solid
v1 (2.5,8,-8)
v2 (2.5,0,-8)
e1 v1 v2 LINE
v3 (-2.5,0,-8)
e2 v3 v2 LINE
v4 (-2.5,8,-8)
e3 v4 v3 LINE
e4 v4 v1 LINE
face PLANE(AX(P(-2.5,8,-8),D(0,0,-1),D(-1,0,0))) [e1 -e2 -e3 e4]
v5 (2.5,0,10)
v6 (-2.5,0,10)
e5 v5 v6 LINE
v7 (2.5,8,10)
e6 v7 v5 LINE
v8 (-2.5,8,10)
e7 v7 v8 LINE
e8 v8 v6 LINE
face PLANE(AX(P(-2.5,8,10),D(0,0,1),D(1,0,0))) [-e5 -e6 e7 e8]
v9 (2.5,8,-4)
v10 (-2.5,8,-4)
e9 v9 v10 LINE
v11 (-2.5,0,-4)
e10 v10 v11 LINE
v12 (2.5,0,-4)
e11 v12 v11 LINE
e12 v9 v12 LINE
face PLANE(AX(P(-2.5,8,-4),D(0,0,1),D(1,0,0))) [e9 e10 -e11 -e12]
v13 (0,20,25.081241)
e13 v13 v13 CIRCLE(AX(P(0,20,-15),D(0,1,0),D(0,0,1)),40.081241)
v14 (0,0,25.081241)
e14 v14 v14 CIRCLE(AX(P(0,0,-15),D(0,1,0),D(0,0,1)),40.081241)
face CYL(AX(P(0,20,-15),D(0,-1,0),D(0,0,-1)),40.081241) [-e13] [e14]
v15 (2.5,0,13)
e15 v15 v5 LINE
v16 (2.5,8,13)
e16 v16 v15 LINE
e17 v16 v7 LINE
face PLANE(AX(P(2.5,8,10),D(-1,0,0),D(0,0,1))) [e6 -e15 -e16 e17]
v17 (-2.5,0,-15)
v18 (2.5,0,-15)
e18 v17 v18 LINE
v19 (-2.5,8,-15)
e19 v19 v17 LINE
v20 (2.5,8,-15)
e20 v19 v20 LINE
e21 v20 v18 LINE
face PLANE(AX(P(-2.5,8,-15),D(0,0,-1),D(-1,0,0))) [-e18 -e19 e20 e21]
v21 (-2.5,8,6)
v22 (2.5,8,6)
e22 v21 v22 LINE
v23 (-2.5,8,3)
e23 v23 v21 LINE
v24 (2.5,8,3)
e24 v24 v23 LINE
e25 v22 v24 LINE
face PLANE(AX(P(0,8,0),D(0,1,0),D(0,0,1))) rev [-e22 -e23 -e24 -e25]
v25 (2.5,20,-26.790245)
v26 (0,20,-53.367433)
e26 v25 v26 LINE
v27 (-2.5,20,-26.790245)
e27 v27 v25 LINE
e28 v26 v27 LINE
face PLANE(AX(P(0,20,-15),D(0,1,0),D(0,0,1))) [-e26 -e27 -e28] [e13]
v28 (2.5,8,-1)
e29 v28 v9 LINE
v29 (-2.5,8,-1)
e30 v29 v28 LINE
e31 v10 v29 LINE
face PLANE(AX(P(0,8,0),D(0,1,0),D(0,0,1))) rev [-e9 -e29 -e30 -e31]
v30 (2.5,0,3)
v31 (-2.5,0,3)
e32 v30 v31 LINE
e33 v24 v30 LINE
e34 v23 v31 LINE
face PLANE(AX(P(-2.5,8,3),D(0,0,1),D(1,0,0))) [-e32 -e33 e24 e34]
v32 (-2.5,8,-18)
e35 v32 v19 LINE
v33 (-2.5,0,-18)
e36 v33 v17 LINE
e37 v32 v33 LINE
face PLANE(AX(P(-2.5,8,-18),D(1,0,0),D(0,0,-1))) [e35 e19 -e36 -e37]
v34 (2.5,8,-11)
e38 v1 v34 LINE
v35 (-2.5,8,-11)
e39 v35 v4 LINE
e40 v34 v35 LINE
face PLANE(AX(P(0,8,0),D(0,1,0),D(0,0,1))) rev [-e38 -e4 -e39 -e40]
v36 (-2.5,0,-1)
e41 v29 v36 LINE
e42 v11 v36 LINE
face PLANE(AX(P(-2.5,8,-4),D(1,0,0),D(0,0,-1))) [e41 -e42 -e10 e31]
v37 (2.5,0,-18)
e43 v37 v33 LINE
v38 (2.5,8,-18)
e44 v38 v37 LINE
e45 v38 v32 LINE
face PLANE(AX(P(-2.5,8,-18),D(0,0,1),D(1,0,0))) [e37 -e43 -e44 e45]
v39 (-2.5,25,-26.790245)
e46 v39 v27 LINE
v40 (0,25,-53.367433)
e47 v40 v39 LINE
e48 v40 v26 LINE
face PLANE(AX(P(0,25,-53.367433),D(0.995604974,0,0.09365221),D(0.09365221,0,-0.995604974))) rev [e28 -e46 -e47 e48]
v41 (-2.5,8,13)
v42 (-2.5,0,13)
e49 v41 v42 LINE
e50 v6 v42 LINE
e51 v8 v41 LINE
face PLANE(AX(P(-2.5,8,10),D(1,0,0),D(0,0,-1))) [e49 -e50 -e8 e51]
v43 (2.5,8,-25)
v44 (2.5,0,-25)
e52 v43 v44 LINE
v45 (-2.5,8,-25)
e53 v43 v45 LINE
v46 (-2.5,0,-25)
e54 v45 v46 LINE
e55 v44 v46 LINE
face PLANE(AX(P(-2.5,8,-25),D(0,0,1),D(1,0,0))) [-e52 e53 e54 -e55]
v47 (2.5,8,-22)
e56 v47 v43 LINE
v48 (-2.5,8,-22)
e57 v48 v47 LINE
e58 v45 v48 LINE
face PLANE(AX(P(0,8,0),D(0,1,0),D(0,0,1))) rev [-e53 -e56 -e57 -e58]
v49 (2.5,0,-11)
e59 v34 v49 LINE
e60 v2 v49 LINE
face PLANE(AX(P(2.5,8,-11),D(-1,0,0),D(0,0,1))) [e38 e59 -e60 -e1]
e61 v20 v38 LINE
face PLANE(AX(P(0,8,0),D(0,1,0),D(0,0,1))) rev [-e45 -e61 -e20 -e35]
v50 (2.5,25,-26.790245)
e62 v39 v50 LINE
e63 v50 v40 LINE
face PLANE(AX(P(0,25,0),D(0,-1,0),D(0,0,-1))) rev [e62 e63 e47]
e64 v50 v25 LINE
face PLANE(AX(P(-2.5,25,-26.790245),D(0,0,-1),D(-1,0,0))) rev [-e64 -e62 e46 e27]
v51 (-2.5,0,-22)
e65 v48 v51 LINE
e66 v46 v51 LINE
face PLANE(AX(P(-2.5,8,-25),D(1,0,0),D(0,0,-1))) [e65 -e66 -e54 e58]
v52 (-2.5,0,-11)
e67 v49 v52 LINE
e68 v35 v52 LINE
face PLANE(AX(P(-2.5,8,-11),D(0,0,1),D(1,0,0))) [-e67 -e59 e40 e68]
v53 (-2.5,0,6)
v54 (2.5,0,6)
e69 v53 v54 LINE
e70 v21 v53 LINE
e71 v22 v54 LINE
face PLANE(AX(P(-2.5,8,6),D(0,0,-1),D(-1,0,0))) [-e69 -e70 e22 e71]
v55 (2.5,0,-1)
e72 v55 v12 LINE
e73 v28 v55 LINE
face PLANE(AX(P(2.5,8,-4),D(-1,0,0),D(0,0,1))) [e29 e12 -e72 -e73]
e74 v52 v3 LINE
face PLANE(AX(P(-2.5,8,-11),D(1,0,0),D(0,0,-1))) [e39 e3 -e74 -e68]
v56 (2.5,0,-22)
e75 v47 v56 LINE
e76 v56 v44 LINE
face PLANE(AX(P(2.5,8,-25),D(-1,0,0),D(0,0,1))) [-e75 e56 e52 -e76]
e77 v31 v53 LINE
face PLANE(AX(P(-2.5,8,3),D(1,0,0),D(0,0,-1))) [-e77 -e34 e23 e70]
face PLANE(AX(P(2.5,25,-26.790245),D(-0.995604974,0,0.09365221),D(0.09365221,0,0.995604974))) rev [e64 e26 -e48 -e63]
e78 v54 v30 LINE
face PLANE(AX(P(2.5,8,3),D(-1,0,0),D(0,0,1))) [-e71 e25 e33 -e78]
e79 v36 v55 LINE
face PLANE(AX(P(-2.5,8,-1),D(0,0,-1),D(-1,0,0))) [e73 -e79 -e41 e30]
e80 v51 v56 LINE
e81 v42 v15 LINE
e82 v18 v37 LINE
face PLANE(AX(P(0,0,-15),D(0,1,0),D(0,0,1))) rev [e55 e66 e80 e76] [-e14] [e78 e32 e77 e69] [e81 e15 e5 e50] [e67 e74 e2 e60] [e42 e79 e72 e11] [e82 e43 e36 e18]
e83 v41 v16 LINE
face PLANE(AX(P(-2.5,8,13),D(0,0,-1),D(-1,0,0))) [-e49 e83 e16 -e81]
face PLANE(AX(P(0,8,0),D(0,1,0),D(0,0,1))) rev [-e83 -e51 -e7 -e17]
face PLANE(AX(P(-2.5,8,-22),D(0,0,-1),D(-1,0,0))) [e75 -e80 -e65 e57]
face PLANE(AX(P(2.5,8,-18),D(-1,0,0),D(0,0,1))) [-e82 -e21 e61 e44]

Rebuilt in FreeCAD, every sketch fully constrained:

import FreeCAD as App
import Part
import Sketcher
from FreeCAD import Vector

doc = App.newDocument("Part")
body = doc.addObject("PartDesign::Body", "Body")

sketch1 = body.newObject("Sketcher::SketchObject", "Sketch")
sketch1.AttachmentSupport = (doc.getObject("XZ_Plane"), [""])
sketch1.MapMode = "FlatFace"
sketch1.addGeometry(Part.Circle(Vector(0, -15, 0), Vector(0, 0, 1), 40.081241), False)
sketch1.addConstraint([
    Sketcher.Constraint("PointOnObject", 0, 3, -2),
    Sketcher.Constraint("DistanceY", 0, 3, -1, 1, 15.0),
    Sketcher.Constraint("Diameter", 0, 80.162482),
])
pad1 = body.newObject("PartDesign::Pad", "Pad")
pad1.Profile = sketch1
pad1.Length = 20
pad1.Reversed = True

sketch2 = body.newObject("Sketcher::SketchObject", "Sketch001")
sketch2.AttachmentSupport = (doc.getObject("XZ_Plane"), [""])
sketch2.MapMode = "FlatFace"
sketch2.addGeometry([
    Part.LineSegment(Vector(-2.5, 3, 0), Vector(-2.5, 6, 0)),
    Part.LineSegment(Vector(-2.5, 6, 0), Vector(2.5, 6, 0)),
    Part.LineSegment(Vector(2.5, 6, 0), Vector(2.5, 3, 0)),
    Part.LineSegment(Vector(2.5, 3, 0), Vector(-2.5, 3, 0)),
    Part.LineSegment(Vector(-2.5, 10, 0), Vector(-2.5, 13, 0)),
    Part.LineSegment(Vector(-2.5, 13, 0), Vector(2.5, 13, 0)),
    Part.LineSegment(Vector(2.5, 13, 0), Vector(2.5, 10, 0)),
    Part.LineSegment(Vector(2.5, 10, 0), Vector(-2.5, 10, 0)),
    Part.LineSegment(Vector(-2.5, -4, 0), Vector(-2.5, -1, 0)),
    Part.LineSegment(Vector(-2.5, -1, 0), Vector(2.5, -1, 0)),
    Part.LineSegment(Vector(2.5, -1, 0), Vector(2.5, -4, 0)),
    Part.LineSegment(Vector(2.5, -4, 0), Vector(-2.5, -4, 0)),
    Part.LineSegment(Vector(-2.5, -11, 0), Vector(-2.5, -8, 0)),
    Part.LineSegment(Vector(-2.5, -8, 0), Vector(2.5, -8, 0)),
    Part.LineSegment(Vector(2.5, -8, 0), Vector(2.5, -11, 0)),
    Part.LineSegment(Vector(2.5, -11, 0), Vector(-2.5, -11, 0)),
    Part.LineSegment(Vector(-2.5, -18, 0), Vector(-2.5, -15, 0)),
    Part.LineSegment(Vector(-2.5, -15, 0), Vector(2.5, -15, 0)),
    Part.LineSegment(Vector(2.5, -15, 0), Vector(2.5, -18, 0)),
    Part.LineSegment(Vector(2.5, -18, 0), Vector(-2.5, -18, 0)),
    Part.LineSegment(Vector(-2.5, -25, 0), Vector(-2.5, -22, 0)),
    Part.LineSegment(Vector(-2.5, -22, 0), Vector(2.5, -22, 0)),
    Part.LineSegment(Vector(2.5, -22, 0), Vector(2.5, -25, 0)),
    Part.LineSegment(Vector(2.5, -25, 0), Vector(-2.5, -25, 0)),
], False)
sketch2.addConstraint([
    Sketcher.Constraint("Coincident", 0, 2, 1, 1),
    Sketcher.Constraint("Coincident", 1, 2, 2, 1),
    Sketcher.Constraint("Coincident", 2, 2, 3, 1),
    Sketcher.Constraint("Coincident", 3, 2, 0, 1),
    Sketcher.Constraint("Coincident", 4, 2, 5, 1),
    Sketcher.Constraint("Coincident", 5, 2, 6, 1),
    Sketcher.Constraint("Coincident", 6, 2, 7, 1),
    Sketcher.Constraint("Coincident", 7, 2, 4, 1),
    Sketcher.Constraint("Coincident", 8, 2, 9, 1),
    Sketcher.Constraint("Coincident", 9, 2, 10, 1),
    Sketcher.Constraint("Coincident", 10, 2, 11, 1),
    Sketcher.Constraint("Coincident", 11, 2, 8, 1),
    Sketcher.Constraint("Coincident", 12, 2, 13, 1),
    Sketcher.Constraint("Coincident", 13, 2, 14, 1),
    Sketcher.Constraint("Coincident", 14, 2, 15, 1),
    Sketcher.Constraint("Coincident", 15, 2, 12, 1),
    Sketcher.Constraint("Coincident", 16, 2, 17, 1),
    Sketcher.Constraint("Coincident", 17, 2, 18, 1),
    Sketcher.Constraint("Coincident", 18, 2, 19, 1),
    Sketcher.Constraint("Coincident", 19, 2, 16, 1),
    Sketcher.Constraint("Coincident", 20, 2, 21, 1),
    Sketcher.Constraint("Coincident", 21, 2, 22, 1),
    Sketcher.Constraint("Coincident", 22, 2, 23, 1),
    Sketcher.Constraint("Coincident", 23, 2, 20, 1),
    Sketcher.Constraint("Vertical", 0),
    Sketcher.Constraint("Horizontal", 1),
    Sketcher.Constraint("Vertical", 2),
    Sketcher.Constraint("Horizontal", 3),
    Sketcher.Constraint("Vertical", 4),
    Sketcher.Constraint("Horizontal", 5),
    Sketcher.Constraint("Vertical", 6),
    Sketcher.Constraint("Horizontal", 7),
    Sketcher.Constraint("Vertical", 8),
    Sketcher.Constraint("Horizontal", 9),
    Sketcher.Constraint("Vertical", 10),
    Sketcher.Constraint("Horizontal", 11),
    Sketcher.Constraint("Vertical", 12),
    Sketcher.Constraint("Horizontal", 13),
    Sketcher.Constraint("Vertical", 14),
    Sketcher.Constraint("Horizontal", 15),
    Sketcher.Constraint("Vertical", 16),
    Sketcher.Constraint("Horizontal", 17),
    Sketcher.Constraint("Vertical", 18),
    Sketcher.Constraint("Horizontal", 19),
    Sketcher.Constraint("Vertical", 20),
    Sketcher.Constraint("Horizontal", 21),
    Sketcher.Constraint("Vertical", 22),
    Sketcher.Constraint("Horizontal", 23),
    Sketcher.Constraint("Vertical", 3, 2, 4, 2),
    Sketcher.Constraint("Vertical", 2, 2, 5, 2),
    Sketcher.Constraint("Vertical", 7, 2, 8, 2),
    Sketcher.Constraint("Vertical", 6, 2, 9, 2),
    Sketcher.Constraint("Vertical", 11, 2, 12, 2),
    Sketcher.Constraint("Vertical", 10, 2, 13, 2),
    Sketcher.Constraint("Vertical", 15, 2, 16, 2),
    Sketcher.Constraint("Vertical", 14, 2, 17, 2),
    Sketcher.Constraint("Vertical", 19, 2, 20, 2),
    Sketcher.Constraint("Vertical", 18, 2, 21, 2),
    Sketcher.Constraint("Equal", 2, 4),
    Sketcher.Constraint("Equal", 6, 8),
    Sketcher.Constraint("Equal", 10, 12),
    Sketcher.Constraint("Equal", 14, 16),
    Sketcher.Constraint("Equal", 18, 20),
    Sketcher.Constraint("DistanceX", 1, 1, 1, 2, 5.0),
    Sketcher.Constraint("DistanceY", 0, 1, 0, 2, 3.0),
    Sketcher.Constraint("DistanceY", -1, 1, 0, 2, 6.0),
    Sketcher.Constraint("DistanceY", -1, 1, 4, 2, 13.0),
    Sketcher.Constraint("DistanceY", 8, 2, -1, 1, 1.0),
    Sketcher.Constraint("DistanceY", 12, 2, -1, 1, 8.0),
    Sketcher.Constraint("DistanceY", 16, 2, -1, 1, 15.0),
    Sketcher.Constraint("DistanceY", 20, 2, -1, 1, 22.0),
    Sketcher.Constraint("DistanceX", 0, 2, -1, 1, 2.5),
])
pocket1 = body.newObject("PartDesign::Pocket", "Pocket")
pocket1.Profile = sketch2
pocket1.Length = 8

sketch3 = body.newObject("Sketcher::SketchObject", "Sketch002")
sketch3.AttachmentSupport = (doc.getObject("XZ_Plane"), [""])
sketch3.MapMode = "FlatFace"
sketch3.AttachmentOffset = App.Placement(Vector(0, 0, -20), App.Rotation())
sketch3.addGeometry([
    Part.LineSegment(Vector(0, -53.367433, 0), Vector(-2.5, -26.790245, 0)),
    Part.LineSegment(Vector(-2.5, -26.790245, 0), Vector(2.5, -26.790245, 0)),
    Part.LineSegment(Vector(2.5, -26.790245, 0), Vector(0, -53.367433, 0)),
], False)
sketch3.addConstraint([
    Sketcher.Constraint("Coincident", 0, 2, 1, 1),
    Sketcher.Constraint("Coincident", 1, 2, 2, 1),
    Sketcher.Constraint("Coincident", 2, 2, 0, 1),
    Sketcher.Constraint("Horizontal", 1),
    Sketcher.Constraint("PointOnObject", 2, 2, -2),
    Sketcher.Constraint("Equal", 0, 2),
    Sketcher.Constraint("DistanceX", 1, 1, 1, 2, 5.0),
    Sketcher.Constraint("Distance", 0, 26.694511),
    Sketcher.Constraint("DistanceY", 0, 2, -1, 1, 26.790245),
])
pad2 = body.newObject("PartDesign::Pad", "Pad001")
pad2.Profile = sketch3
pad2.Length = 5
pad2.Reversed = True

doc.recompute()
